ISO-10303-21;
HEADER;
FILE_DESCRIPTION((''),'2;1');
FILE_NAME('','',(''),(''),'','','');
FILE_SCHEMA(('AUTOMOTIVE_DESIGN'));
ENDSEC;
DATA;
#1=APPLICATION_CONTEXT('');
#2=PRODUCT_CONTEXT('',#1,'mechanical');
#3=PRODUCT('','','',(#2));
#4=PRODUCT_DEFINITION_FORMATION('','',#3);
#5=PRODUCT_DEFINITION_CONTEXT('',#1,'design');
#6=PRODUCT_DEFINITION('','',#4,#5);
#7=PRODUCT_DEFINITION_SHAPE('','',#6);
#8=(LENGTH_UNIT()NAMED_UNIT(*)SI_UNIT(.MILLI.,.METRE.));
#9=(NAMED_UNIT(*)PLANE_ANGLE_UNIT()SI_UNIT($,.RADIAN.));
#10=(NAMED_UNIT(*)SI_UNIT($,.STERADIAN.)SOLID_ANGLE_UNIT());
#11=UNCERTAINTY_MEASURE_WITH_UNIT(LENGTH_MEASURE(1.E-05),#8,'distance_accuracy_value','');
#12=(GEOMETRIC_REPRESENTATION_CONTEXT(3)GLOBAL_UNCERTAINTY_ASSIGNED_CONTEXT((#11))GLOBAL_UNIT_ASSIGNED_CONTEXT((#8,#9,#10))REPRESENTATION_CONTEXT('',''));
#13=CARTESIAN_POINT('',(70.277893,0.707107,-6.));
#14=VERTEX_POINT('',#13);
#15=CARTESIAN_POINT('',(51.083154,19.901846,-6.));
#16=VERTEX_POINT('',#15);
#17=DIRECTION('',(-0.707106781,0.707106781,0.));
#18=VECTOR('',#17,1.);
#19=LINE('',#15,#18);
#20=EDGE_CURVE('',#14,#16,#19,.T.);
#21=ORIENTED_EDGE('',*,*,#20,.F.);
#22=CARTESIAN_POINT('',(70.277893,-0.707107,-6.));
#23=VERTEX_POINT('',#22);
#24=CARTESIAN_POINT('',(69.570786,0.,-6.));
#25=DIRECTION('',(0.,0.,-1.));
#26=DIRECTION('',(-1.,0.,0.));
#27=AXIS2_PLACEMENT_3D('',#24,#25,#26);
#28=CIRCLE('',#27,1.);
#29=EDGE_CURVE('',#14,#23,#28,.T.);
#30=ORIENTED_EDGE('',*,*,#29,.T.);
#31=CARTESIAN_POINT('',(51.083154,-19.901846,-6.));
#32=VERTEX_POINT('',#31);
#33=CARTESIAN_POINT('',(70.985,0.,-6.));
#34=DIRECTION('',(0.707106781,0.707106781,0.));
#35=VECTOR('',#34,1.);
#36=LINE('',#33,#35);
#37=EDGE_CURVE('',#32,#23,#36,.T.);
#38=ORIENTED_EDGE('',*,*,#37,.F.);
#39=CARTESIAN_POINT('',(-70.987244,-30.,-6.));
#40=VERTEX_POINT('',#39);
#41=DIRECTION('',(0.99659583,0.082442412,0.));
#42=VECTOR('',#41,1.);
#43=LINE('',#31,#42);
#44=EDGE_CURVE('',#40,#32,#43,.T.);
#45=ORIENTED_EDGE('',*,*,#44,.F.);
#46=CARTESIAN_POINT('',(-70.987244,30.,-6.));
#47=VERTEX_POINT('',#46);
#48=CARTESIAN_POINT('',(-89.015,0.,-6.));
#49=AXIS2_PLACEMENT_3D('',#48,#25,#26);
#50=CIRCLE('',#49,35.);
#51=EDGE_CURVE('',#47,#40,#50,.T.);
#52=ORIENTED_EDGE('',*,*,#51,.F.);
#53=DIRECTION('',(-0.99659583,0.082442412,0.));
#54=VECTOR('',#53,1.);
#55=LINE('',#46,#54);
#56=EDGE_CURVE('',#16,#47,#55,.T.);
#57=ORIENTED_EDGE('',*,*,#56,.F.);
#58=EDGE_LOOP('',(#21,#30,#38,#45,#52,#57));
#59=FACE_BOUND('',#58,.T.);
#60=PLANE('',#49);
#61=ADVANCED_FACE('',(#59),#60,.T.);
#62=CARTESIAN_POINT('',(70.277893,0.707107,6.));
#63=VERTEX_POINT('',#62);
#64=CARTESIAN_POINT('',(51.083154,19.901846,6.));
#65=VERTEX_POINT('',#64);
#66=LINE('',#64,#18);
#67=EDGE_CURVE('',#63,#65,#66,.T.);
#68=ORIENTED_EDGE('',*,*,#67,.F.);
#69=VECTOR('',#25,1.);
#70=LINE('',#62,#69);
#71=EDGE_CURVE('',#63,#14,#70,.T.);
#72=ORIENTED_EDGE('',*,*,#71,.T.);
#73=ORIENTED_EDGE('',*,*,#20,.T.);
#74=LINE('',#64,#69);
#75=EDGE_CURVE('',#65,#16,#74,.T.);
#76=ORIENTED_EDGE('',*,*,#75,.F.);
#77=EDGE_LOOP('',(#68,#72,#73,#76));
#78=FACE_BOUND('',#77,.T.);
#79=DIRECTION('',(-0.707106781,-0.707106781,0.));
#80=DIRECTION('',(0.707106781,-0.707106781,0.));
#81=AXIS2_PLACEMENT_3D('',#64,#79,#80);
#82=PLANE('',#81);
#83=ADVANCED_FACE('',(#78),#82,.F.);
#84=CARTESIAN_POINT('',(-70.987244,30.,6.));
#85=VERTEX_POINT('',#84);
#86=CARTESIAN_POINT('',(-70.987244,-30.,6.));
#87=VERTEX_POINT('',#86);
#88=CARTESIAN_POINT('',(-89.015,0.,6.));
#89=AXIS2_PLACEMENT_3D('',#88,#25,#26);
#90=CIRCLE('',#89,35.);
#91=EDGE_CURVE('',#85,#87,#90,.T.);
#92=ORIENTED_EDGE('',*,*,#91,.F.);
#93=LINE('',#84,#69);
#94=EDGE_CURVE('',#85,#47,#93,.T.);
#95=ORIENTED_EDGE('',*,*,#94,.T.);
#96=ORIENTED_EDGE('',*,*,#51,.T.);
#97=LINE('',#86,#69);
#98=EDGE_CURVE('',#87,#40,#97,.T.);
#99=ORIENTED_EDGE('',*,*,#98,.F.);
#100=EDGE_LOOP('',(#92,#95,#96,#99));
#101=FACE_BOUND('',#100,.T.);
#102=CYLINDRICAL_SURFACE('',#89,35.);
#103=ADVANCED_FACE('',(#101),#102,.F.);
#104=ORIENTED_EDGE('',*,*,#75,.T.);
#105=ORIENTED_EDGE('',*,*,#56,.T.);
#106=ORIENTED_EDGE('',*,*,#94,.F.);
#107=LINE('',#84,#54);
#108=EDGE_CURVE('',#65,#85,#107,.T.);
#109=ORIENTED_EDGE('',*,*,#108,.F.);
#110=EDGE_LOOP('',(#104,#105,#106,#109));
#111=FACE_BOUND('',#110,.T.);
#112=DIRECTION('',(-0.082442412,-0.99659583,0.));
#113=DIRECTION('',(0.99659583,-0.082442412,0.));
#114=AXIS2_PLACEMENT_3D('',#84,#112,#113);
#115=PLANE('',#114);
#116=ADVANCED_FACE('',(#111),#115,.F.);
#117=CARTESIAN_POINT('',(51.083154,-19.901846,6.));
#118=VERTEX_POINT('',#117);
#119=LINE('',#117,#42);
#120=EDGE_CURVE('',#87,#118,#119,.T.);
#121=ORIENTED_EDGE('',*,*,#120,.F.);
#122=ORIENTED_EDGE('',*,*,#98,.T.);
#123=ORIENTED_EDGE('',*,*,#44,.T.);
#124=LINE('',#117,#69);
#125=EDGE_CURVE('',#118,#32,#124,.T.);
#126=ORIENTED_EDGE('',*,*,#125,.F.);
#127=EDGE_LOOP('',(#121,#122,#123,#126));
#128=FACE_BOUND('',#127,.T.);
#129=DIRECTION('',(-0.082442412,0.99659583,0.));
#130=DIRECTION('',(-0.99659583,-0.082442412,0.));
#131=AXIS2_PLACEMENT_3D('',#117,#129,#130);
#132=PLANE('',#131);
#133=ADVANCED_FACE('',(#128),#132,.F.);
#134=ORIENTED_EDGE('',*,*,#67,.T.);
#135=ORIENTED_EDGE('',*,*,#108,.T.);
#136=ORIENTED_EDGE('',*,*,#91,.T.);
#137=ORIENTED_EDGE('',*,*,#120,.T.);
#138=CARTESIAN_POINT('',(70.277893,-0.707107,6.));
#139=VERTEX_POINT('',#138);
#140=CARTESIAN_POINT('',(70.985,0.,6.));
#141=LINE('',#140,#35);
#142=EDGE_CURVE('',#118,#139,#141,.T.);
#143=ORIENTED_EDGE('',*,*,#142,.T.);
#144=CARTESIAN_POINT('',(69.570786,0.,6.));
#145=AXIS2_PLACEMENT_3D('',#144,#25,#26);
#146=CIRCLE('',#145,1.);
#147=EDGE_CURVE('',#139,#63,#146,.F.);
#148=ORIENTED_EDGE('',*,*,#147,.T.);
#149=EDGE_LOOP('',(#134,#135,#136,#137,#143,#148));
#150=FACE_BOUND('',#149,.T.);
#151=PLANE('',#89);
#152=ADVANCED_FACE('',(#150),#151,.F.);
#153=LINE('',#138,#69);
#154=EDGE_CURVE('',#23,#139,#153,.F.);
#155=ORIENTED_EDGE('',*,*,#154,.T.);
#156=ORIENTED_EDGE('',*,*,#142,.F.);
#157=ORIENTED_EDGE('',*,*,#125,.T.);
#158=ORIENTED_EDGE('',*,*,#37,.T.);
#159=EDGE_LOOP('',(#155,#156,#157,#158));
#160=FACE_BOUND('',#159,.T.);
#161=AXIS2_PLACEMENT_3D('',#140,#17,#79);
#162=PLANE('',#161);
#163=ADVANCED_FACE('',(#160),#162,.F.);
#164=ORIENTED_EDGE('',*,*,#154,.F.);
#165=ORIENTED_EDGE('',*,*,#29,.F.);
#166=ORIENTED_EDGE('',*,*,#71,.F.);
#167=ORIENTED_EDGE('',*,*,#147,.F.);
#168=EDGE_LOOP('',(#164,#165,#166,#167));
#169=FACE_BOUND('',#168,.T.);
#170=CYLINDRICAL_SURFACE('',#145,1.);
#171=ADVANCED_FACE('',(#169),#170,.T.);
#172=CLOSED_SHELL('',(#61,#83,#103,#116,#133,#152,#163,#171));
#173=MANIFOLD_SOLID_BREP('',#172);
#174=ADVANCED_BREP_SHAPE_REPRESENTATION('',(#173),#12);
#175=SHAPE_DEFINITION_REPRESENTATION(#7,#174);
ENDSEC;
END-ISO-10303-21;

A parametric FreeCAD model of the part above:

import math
import FreeCAD as App
import Part
import Sketcher
from FreeCAD import Vector
Q = App.Units.Quantity


def edges_at(feature, points):
    """Names of the edges that pass closest to the given points."""
    edges = feature.Shape.Edges
    near = lambda p: min(range(len(edges)), key=lambda i: edges[i].distToShape(Part.Vertex(*p))[0])
    return sorted({f"Edge{near(p) + 1}" for p in points})

doc = App.newDocument("Part")
params = doc.addObject("Spreadsheet::Sheet", "Params")
for row, (alias, value) in enumerate([
    ("sketch1_radius", "35 mm"),
    ("pad1_length", "12 mm"),
    ("fillet_radius", "1 mm"),
], start=1):
    params.set(f"A{row}", alias)
    params.set(f"B{row}", "=" + value)
    params.setAlias(f"B{row}", alias)

body = doc.addObject("PartDesign::Body", "Body")

# Sketch on XY plane
sketch1 = body.newObject("Sketcher::SketchObject", "Sketch")
sketch1.AttachmentSupport = (doc.getObject("XY_Plane"), [""])
sketch1.MapMode = "FlatFace"
sketch1.addGeometry(Part.LineSegment(Vector(-71, -30, 0), Vector(51, -20, 0)), False)
sketch1.addGeometry(Part.LineSegment(Vector(51, -20, 0), Vector(71, 0, 0)), False)
sketch1.addGeometry(Part.LineSegment(Vector(71, 0, 0), Vector(51, 20, 0)), False)
sketch1.addGeometry(Part.LineSegment(Vector(51, 20, 0), Vector(-71, 30, 0)), False)
sketch1.addGeometry(Part.ArcOfCircle(Part.Circle(Vector(-89, 0, 0), Vector(0, 0, 1), 35), math.radians(-59), math.radians(59)), False)
sketch1.addConstraint(Sketcher.Constraint("Coincident", 0, 2, 1, 1))
sketch1.addConstraint(Sketcher.Constraint("Coincident", 1, 2, 2, 1))
sketch1.addConstraint(Sketcher.Constraint("Coincident", 2, 2, 3, 1))
sketch1.addConstraint(Sketcher.Constraint("Coincident", 3, 2, 4, 2))
sketch1.addConstraint(Sketcher.Constraint("Coincident", 4, 1, 0, 1))
sketch1.addConstraint(Sketcher.Constraint("Symmetric", 0, 2, 2, 2, -1))
sketch1.addConstraint(Sketcher.Constraint("Symmetric", 3, 2, 4, 1, -1))
sketch1.addConstraint(Sketcher.Constraint("PointOnObject", 1, 2, -1))
sketch1.addConstraint(Sketcher.Constraint("Perpendicular", 1, 2))
sketch1.addConstraint(Sketcher.Constraint("Radius", 4, Q("35 mm")))
sketch1.addConstraint(Sketcher.Constraint("DistanceY", -1, 1, 3, 2, Q("30 mm")))
sketch1.addConstraint(Sketcher.Constraint("DistanceX", 4, 3, 1, 2, Q("160 mm")))
sketch1.addConstraint(Sketcher.Constraint("DistanceX", 4, 3, -1, 1, Q("89.015 mm")))
sketch1.addConstraint(Sketcher.Constraint("Distance", 1, Q("28.145461 mm")))
sketch1.setExpression("Constraints[9]", "Params.sketch1_radius")
pad1 = body.newObject("PartDesign::Pad", "Pad")
pad1.Profile = sketch1
pad1.setExpression("Length", "Params.pad1_length")
pad1.Midplane = True
doc.recompute()

fillet = body.newObject("PartDesign::Fillet", "Fillet")
fillet.Base = (pad1, edges_at(pad1, [(70.985, 0, 0)]))
fillet.setExpression("Radius", "Params.fillet_radius")

doc.recompute()
